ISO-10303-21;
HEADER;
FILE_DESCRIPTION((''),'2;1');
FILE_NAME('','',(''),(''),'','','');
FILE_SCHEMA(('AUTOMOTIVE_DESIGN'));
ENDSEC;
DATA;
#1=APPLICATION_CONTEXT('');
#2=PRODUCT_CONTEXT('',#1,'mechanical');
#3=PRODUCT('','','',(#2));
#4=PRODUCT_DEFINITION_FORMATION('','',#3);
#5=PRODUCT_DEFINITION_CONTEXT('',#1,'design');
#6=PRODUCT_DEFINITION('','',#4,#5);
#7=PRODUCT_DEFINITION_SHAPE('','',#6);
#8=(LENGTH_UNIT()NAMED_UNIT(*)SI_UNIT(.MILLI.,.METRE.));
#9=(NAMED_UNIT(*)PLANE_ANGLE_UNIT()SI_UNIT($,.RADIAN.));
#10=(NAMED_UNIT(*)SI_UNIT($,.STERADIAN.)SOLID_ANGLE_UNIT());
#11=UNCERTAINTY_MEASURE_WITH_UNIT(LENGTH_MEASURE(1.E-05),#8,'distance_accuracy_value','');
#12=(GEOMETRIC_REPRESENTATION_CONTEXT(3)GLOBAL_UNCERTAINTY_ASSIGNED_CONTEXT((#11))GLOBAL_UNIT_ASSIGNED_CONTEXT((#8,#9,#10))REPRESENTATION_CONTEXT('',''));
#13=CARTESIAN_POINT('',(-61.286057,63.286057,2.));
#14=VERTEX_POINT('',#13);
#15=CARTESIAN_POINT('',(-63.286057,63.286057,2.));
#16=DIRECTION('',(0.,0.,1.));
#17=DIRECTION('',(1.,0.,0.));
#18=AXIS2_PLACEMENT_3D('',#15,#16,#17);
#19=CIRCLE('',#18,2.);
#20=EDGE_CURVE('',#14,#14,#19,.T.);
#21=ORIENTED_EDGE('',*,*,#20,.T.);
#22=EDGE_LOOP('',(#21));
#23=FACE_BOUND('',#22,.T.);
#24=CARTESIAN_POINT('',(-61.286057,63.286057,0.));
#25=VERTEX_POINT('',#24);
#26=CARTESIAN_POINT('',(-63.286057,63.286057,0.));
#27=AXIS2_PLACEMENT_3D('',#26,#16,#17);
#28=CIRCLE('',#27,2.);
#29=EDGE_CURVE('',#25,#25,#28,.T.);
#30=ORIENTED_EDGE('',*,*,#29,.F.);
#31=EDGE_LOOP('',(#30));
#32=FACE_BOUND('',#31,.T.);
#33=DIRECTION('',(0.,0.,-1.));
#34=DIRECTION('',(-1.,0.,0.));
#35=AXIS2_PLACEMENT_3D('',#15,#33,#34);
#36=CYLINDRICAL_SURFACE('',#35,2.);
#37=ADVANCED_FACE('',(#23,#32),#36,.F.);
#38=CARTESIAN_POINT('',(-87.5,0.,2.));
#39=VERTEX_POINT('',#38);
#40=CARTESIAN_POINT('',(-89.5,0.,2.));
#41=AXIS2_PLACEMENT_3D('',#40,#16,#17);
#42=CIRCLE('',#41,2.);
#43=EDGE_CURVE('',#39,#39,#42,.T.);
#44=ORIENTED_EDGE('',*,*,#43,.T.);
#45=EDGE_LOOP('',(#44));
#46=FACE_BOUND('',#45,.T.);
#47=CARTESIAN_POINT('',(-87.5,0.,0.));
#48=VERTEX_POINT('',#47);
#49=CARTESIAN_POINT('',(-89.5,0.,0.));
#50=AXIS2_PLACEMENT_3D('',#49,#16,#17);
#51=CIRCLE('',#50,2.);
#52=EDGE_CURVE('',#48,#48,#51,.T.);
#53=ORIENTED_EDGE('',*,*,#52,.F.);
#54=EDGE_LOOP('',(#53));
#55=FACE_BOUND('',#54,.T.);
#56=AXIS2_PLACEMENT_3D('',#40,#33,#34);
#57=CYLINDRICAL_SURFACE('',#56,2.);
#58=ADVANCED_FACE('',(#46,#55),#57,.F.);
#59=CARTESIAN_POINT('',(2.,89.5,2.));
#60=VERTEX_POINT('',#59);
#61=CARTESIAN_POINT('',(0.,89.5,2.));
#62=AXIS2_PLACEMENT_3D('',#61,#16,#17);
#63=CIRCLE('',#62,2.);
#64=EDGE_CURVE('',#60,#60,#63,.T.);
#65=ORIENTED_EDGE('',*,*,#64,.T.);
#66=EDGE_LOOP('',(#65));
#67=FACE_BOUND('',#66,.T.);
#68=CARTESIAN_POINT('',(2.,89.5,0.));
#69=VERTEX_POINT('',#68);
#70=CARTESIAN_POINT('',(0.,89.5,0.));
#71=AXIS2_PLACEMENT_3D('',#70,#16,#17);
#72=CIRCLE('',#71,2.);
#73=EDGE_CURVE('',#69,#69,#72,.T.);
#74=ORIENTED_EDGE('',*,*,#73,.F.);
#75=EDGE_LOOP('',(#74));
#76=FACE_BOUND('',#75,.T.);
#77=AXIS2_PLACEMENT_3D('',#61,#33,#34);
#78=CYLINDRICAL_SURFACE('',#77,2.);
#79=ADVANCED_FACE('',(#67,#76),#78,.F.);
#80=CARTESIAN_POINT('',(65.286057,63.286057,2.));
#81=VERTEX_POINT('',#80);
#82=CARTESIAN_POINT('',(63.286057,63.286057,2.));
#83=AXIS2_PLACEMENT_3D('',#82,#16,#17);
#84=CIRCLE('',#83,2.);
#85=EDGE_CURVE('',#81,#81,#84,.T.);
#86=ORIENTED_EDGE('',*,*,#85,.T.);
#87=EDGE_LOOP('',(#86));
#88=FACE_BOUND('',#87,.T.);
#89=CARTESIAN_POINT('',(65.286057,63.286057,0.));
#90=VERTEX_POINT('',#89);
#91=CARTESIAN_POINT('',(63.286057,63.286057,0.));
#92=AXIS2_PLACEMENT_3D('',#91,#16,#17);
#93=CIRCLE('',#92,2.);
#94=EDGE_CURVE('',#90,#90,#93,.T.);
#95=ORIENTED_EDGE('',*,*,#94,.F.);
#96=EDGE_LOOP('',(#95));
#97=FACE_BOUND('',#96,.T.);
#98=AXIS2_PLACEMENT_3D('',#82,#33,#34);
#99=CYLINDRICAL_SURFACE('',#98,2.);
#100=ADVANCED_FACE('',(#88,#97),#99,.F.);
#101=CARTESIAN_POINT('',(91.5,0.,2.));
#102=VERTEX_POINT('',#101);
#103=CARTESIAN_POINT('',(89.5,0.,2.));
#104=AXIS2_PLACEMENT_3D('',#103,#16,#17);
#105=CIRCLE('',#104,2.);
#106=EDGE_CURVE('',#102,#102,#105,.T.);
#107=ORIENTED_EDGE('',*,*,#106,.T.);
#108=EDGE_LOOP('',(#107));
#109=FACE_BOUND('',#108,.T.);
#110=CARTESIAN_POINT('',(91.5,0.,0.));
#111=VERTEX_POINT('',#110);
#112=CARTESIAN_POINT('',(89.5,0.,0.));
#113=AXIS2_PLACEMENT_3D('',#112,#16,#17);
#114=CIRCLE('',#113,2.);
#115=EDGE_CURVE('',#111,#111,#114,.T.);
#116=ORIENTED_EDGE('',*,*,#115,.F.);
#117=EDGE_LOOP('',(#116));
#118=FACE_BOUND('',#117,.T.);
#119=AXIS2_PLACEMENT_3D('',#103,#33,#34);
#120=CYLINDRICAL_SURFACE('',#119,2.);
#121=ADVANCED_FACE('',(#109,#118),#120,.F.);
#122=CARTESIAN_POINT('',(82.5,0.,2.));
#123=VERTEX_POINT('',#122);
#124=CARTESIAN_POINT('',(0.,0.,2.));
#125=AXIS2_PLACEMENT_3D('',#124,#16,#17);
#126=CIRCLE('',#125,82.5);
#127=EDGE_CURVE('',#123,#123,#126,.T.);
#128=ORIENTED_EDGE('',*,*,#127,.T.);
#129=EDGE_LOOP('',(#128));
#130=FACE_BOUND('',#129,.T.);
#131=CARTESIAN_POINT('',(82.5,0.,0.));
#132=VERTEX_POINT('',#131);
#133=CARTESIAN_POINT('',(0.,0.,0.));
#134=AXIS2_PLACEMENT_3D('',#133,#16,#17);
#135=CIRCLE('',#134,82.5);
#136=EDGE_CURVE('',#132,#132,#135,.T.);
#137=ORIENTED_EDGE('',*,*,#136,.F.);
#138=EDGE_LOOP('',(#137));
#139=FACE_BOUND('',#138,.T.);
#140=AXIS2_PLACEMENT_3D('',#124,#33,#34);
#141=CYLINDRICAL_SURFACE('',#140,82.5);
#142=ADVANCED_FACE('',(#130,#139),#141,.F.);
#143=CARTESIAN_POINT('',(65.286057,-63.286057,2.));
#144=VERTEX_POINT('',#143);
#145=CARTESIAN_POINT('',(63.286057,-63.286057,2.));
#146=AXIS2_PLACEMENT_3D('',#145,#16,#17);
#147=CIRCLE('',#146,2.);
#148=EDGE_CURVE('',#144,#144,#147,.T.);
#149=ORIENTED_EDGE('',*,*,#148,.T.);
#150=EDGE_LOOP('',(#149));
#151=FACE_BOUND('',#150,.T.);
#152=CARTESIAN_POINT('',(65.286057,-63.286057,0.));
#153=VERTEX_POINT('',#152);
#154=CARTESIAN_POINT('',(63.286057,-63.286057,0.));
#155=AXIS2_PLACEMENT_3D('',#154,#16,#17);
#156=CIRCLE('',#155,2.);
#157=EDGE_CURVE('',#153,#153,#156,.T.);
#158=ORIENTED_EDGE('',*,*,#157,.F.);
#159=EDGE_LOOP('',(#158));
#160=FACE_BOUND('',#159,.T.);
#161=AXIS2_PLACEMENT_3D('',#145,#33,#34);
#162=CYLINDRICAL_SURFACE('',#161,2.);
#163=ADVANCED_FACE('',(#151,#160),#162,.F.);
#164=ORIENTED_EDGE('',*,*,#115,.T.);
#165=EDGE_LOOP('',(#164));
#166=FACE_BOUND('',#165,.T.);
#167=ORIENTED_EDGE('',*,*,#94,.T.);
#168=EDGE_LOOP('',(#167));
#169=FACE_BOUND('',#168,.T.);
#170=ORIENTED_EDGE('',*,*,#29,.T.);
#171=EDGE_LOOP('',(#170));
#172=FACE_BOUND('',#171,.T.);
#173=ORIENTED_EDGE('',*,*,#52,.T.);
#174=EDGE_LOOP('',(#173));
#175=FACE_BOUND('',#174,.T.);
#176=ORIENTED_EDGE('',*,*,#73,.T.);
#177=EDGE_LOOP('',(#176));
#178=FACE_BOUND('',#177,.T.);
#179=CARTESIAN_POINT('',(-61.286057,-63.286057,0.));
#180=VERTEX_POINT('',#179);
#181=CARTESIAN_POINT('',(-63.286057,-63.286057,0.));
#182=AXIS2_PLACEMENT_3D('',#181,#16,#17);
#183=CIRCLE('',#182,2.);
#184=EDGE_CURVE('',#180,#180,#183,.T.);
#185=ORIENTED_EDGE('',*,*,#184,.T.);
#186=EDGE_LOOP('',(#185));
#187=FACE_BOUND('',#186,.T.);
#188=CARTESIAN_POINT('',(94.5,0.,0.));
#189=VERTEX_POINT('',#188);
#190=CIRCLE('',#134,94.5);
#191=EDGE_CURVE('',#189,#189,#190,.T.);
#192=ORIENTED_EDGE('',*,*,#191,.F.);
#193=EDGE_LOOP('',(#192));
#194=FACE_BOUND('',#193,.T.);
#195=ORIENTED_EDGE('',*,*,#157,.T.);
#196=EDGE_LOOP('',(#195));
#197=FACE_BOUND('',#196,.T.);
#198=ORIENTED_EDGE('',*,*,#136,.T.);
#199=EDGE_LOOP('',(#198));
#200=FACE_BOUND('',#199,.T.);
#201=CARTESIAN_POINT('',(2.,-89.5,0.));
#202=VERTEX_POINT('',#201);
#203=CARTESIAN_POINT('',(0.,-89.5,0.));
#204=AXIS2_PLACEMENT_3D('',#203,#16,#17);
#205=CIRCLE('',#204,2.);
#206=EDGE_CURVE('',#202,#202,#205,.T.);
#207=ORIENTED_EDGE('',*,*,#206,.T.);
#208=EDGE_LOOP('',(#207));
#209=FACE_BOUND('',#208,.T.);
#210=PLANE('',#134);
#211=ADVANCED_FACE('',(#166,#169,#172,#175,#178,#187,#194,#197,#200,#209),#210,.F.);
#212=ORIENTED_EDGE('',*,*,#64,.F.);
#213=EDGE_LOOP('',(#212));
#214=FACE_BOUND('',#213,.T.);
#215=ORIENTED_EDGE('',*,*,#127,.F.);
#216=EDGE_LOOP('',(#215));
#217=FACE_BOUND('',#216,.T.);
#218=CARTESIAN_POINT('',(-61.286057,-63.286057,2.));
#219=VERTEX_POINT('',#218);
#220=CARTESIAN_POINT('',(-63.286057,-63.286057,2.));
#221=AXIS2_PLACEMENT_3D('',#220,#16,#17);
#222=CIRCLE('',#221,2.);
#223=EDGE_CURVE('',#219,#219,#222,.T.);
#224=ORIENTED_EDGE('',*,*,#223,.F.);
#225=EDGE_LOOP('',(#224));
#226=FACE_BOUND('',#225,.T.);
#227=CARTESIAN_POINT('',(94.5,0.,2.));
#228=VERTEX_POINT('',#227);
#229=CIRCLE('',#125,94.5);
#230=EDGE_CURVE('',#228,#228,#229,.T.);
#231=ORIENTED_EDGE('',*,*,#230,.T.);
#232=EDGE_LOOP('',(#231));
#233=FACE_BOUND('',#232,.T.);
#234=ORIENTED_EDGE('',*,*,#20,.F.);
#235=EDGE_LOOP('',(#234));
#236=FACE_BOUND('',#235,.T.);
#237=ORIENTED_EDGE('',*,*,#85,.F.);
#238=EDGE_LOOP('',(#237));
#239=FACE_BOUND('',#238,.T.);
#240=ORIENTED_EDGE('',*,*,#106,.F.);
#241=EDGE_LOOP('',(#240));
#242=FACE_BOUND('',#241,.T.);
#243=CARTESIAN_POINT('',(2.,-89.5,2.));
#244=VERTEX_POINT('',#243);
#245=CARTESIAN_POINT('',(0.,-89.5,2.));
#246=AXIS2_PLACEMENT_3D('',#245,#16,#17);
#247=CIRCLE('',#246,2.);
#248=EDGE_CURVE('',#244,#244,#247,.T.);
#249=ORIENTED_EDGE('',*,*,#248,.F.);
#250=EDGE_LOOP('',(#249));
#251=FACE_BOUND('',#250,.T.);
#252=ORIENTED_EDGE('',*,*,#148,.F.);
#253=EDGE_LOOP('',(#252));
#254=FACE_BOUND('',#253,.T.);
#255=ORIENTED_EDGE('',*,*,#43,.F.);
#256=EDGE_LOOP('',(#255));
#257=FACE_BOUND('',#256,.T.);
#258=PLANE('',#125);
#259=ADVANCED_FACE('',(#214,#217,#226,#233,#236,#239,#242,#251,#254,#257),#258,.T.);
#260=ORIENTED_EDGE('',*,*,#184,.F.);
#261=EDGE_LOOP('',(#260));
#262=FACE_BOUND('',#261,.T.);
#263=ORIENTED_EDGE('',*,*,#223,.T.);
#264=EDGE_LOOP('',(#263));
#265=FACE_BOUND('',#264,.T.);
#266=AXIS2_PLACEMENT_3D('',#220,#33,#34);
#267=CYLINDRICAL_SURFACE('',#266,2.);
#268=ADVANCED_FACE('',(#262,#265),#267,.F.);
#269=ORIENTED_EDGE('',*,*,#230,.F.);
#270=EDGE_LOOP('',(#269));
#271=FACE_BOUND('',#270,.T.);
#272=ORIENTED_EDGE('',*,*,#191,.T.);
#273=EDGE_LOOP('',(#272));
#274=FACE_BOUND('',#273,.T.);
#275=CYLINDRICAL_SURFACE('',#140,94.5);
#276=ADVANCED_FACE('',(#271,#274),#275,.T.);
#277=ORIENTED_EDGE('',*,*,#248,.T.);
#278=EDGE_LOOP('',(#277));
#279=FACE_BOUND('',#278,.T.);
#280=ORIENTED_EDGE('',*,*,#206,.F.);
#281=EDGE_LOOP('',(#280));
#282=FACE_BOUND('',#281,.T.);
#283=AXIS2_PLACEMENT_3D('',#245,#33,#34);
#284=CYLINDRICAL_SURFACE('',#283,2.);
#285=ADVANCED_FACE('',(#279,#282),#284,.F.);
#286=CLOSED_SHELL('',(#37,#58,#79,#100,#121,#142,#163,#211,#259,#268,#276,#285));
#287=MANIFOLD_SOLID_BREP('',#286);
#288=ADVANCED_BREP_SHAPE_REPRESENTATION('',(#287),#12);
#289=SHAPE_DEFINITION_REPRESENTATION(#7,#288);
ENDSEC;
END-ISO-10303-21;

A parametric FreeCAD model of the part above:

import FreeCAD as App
import Part
import Sketcher
from FreeCAD import Vector
Q = App.Units.Quantity

doc = App.newDocument("Part")
body = doc.addObject("PartDesign::Body", "Body")

sketch1 = body.newObject("Sketcher::SketchObject", "Sketch")
sketch1.AttachmentSupport = (doc.getObject("XY_Plane"), [""])
sketch1.MapMode = "FlatFace"
sketch1.addGeometry([
    Part.Circle(Vector(0, 0, 0), Vector(0, 0, 1), 94.5),
    Part.Circle(Vector(-63.286057, -63.286057, 0), Vector(0, 0, 1), 2),
    Part.Circle(Vector(0, -89.5, 0), Vector(0, 0, 1), 2),
    Part.Circle(Vector(63.286057, -63.286057, 0), Vector(0, 0, 1), 2),
    Part.Circle(Vector(-89.5, 0, 0), Vector(0, 0, 1), 2),
    Part.Circle(Vector(-63.286057, 63.286057, 0), Vector(0, 0, 1), 2),
    Part.Circle(Vector(0, 0, 0), Vector(0, 0, 1), 82.5),
    Part.Circle(Vector(89.5, 0, 0), Vector(0, 0, 1), 2),
    Part.Circle(Vector(0, 89.5, 0), Vector(0, 0, 1), 2),
    Part.Circle(Vector(63.286057, 63.286057, 0), Vector(0, 0, 1), 2),
], False)
sketch1.addConstraint([
    Sketcher.Constraint("Coincident", 0, 3, -1, 1),
    Sketcher.Constraint("Coincident", 6, 3, -1, 1),
    Sketcher.Constraint("Equal", 1, 2),
    Sketcher.Constraint("Equal", 2, 3),
    Sketcher.Constraint("Equal", 3, 4),
    Sketcher.Constraint("Equal", 4, 5),
    Sketcher.Constraint("Equal", 5, 7),
    Sketcher.Constraint("Equal", 7, 8),
    Sketcher.Constraint("Equal", 8, 9),
    Sketcher.Constraint("Symmetric", 3, 3, 5, 3, -1, 1),
    Sketcher.Constraint("Symmetric", 4, 3, 7, 3, -1, 1),
    Sketcher.Constraint("Symmetric", 2, 3, 8, 3, -1, 1),
    Sketcher.Constraint("Symmetric", 1, 3, 9, 3, -1, 1),
    Sketcher.Constraint("Symmetric", 1, 3, 3, 3, -2),
    Sketcher.Constraint("PointOnObject", 2, 3, -2),
    Sketcher.Constraint("PointOnObject", 4, 3, -1),
    Sketcher.Constraint("Diameter", 0, Q("189 mm")),
    Sketcher.Constraint("Diameter", 1, Q("4 mm")),
    Sketcher.Constraint("Diameter", 6, Q("165 mm")),
    Sketcher.Constraint("DistanceY", 2, 3, -1, 1, Q("89.5 mm")),
    Sketcher.Constraint("DistanceX", 4, 3, -1, 1, Q("89.5 mm")),
    Sketcher.Constraint("DistanceX", 1, 3, -1, 1, Q("63.286057 mm")),
    Sketcher.Constraint("DistanceY", 1, 3, -1, 1, Q("63.286057 mm")),
])
pad1 = body.newObject("PartDesign::Pad", "Pad")
pad1.Profile = sketch1
pad1.Length = 2

doc.recompute()
